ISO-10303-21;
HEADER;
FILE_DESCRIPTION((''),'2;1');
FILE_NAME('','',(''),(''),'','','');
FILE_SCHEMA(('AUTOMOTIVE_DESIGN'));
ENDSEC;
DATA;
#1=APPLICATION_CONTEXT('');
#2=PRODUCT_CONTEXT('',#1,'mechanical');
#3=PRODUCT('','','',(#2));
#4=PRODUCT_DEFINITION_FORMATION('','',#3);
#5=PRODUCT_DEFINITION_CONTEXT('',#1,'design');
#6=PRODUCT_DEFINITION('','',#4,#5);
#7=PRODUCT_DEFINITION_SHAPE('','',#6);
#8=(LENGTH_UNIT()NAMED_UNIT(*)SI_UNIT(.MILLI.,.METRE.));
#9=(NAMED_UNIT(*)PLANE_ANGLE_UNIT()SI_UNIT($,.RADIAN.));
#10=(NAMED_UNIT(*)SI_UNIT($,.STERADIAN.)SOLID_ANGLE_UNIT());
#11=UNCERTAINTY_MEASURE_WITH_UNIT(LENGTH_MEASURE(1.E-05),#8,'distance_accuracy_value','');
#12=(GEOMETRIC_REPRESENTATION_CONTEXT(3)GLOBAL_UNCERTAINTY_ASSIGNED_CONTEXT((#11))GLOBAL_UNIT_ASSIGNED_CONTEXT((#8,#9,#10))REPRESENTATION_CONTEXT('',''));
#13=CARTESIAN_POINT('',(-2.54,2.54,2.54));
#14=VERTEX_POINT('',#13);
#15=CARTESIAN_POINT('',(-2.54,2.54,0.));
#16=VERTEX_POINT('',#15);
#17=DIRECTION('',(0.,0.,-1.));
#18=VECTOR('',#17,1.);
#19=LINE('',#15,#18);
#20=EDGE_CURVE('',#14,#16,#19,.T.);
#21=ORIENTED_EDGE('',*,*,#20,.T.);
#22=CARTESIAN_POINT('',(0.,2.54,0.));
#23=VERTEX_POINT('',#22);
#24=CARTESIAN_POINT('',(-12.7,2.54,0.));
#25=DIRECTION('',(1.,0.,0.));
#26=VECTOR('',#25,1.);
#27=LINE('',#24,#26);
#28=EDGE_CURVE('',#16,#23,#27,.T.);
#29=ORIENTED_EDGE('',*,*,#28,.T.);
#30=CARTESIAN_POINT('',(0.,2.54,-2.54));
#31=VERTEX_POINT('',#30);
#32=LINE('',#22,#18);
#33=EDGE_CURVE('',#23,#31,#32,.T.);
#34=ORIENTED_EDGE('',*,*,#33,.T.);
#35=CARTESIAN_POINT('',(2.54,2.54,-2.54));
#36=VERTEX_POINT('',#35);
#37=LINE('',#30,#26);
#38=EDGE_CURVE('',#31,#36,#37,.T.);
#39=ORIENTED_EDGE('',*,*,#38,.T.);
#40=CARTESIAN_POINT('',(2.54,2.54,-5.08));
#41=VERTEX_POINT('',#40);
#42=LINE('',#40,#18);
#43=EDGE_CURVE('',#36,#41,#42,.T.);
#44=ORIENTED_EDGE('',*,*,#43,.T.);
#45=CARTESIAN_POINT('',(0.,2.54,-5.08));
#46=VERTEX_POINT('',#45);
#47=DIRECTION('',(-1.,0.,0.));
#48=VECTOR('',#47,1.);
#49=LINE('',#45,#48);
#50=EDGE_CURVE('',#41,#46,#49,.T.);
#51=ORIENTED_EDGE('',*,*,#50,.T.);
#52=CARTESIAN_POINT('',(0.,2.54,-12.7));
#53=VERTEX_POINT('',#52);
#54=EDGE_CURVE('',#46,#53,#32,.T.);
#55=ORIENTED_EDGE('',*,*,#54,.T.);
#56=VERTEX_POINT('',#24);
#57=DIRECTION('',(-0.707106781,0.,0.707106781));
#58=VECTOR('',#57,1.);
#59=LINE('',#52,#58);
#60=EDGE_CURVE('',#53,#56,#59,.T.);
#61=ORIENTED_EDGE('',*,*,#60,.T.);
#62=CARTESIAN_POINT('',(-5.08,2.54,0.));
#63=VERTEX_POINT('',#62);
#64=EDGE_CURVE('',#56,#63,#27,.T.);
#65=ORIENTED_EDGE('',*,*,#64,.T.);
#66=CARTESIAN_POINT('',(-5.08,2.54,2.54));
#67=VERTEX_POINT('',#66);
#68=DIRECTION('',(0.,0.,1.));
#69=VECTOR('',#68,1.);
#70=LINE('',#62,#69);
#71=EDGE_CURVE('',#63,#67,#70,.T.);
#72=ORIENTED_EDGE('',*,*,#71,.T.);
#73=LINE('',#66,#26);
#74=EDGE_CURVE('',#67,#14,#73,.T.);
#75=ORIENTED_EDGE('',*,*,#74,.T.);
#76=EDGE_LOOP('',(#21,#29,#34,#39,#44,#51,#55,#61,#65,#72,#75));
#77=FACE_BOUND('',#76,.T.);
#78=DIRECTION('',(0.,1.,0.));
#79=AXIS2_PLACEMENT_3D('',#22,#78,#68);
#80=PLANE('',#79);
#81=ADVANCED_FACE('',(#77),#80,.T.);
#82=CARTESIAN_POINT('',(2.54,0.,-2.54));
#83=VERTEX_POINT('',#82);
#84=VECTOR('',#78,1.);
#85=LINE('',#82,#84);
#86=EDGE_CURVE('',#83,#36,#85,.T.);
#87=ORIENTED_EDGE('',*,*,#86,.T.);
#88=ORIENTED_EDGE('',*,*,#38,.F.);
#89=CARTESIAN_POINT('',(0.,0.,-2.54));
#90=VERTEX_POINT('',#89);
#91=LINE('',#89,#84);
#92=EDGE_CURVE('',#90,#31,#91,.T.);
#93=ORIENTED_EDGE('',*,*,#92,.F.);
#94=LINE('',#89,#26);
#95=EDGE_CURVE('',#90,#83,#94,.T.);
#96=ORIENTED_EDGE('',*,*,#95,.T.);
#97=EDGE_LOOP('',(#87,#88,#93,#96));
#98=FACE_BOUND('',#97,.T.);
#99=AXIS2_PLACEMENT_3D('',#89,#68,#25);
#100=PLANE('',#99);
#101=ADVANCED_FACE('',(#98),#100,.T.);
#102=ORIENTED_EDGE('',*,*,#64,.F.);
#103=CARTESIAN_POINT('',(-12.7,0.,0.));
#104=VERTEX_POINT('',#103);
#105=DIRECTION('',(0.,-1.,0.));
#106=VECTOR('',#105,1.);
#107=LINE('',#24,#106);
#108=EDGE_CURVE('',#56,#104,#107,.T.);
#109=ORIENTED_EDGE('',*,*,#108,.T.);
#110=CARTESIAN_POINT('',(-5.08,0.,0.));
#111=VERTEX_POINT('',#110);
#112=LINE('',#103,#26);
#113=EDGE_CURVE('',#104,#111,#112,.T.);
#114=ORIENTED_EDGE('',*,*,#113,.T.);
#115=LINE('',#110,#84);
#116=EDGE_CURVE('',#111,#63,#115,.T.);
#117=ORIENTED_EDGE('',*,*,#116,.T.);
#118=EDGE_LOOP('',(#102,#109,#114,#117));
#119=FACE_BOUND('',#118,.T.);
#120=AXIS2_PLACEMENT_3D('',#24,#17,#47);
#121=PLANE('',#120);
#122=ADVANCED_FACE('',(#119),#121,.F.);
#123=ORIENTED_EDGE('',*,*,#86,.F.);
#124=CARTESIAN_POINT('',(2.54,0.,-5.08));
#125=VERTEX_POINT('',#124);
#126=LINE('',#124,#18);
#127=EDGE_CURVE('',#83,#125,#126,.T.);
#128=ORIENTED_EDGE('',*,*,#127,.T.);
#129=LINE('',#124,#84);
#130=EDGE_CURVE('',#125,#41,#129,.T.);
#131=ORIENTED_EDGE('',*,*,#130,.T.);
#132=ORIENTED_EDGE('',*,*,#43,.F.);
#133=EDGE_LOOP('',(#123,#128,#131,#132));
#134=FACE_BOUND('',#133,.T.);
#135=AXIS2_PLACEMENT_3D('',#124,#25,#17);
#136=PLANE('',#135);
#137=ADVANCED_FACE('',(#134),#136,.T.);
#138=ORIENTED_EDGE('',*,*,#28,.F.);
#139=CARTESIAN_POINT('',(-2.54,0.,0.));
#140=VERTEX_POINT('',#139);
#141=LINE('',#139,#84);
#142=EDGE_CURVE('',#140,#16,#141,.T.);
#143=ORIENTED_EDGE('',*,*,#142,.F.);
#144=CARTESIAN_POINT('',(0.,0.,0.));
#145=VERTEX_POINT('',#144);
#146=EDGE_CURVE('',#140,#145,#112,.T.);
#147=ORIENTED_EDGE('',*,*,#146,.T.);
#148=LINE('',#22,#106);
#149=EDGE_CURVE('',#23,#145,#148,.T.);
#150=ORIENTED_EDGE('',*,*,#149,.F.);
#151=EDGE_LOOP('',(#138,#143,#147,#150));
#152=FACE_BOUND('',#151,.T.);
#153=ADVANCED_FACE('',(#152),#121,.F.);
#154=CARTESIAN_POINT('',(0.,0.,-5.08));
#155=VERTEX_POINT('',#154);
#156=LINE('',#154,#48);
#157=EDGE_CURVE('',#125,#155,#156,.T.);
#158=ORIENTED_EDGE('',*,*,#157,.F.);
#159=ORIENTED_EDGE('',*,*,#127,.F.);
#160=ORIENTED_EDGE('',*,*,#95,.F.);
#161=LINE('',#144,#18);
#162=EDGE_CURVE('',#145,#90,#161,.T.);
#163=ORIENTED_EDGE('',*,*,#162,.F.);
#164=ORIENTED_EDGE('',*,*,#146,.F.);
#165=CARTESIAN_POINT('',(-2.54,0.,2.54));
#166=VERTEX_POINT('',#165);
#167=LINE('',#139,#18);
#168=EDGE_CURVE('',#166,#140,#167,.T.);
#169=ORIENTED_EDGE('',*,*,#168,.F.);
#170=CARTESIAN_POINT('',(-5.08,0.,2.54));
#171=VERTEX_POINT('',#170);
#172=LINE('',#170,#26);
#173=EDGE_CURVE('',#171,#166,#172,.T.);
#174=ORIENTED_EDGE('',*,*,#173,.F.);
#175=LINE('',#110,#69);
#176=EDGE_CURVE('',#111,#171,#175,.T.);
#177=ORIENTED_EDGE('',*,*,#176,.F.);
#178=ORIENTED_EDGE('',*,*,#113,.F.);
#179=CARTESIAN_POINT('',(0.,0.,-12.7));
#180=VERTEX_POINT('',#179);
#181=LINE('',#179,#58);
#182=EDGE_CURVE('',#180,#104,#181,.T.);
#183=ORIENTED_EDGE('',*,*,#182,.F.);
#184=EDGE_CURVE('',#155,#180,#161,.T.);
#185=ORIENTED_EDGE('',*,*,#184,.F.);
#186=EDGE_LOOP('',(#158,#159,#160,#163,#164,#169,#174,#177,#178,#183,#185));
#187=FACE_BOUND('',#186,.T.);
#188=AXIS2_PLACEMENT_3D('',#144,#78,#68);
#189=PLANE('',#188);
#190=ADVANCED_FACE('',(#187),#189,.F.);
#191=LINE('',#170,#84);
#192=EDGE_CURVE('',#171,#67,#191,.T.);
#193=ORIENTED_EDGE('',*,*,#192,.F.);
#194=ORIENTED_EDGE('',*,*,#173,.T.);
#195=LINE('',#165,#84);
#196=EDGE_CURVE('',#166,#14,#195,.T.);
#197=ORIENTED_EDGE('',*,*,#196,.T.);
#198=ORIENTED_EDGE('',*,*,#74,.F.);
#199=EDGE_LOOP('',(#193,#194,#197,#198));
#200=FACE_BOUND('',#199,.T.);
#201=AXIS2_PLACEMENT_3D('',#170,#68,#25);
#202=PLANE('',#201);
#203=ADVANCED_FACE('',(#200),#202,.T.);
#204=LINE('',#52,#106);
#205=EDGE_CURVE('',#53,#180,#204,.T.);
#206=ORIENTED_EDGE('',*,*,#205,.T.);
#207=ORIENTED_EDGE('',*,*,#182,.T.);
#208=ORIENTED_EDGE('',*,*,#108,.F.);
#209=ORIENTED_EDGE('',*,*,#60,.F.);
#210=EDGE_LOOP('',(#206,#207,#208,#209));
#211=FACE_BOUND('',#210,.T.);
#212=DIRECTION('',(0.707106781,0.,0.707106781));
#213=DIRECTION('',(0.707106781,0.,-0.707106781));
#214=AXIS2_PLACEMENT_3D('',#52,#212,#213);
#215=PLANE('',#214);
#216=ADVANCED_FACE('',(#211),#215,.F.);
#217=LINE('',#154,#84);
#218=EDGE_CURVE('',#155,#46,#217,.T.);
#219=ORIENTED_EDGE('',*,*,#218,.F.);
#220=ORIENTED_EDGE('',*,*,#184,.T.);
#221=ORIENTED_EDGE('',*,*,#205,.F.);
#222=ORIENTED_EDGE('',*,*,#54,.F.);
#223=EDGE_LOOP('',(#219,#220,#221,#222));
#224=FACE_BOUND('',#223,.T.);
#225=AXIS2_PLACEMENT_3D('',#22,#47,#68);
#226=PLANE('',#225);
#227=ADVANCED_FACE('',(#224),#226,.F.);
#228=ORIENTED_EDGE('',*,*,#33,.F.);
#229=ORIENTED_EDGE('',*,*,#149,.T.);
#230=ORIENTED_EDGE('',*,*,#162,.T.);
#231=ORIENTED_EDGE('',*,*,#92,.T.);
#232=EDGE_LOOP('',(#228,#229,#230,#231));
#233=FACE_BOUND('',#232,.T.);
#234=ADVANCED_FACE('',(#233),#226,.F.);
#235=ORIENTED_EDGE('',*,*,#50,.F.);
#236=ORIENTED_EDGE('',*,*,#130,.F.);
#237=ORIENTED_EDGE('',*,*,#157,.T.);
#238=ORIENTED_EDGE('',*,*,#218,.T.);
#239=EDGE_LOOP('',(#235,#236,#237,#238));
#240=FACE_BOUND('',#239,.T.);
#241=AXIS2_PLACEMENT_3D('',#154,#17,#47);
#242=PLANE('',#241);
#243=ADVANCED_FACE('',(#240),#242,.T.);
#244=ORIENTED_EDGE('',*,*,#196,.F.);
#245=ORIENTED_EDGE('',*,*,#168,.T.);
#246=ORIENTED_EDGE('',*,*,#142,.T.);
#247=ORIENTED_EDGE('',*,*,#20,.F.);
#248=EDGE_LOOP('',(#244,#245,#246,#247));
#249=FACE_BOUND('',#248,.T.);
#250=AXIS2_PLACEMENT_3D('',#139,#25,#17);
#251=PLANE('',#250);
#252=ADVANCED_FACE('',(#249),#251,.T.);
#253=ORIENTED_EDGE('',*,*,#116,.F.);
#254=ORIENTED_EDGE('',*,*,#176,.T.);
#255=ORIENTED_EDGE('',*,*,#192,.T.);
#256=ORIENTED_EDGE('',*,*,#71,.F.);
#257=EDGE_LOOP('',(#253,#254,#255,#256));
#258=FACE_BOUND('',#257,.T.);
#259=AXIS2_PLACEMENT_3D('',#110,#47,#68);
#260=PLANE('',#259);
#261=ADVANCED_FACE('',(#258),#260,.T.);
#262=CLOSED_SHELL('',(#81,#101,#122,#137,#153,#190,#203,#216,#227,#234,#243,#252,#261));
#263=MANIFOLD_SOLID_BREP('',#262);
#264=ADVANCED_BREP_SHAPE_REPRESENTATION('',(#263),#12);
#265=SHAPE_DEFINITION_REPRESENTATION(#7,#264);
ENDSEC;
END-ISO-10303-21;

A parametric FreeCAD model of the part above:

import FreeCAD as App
import Part
import Sketcher
from FreeCAD import Vector
Q = App.Units.Quantity


def add_polygon(sketch, points):
    """Adds a closed chain of lines whose ends are joined by coincident constraints."""
    first, n = sketch.GeometryCount, len(points)
    for a, b in zip(points, points[1:] + points[:1]):
        sketch.addGeometry(Part.LineSegment(App.Vector(*a, 0), App.Vector(*b, 0)), False)
    for i in range(n):
        sketch.addConstraint(Sketcher.Constraint("Coincident", first + i, 2, first + (i + 1) % n, 1))

doc = App.newDocument("Part")
body = doc.addObject("PartDesign::Body", "Body")

# Sketch on XZ plane
sketch1 = body.newObject("Sketcher::SketchObject", "Sketch")
sketch1.AttachmentSupport = (doc.getObject("XZ_Plane"), [""])
sketch1.MapMode = "FlatFace"
add_polygon(sketch1, [(0, 0), (0, -12.7), (-12.7, 0)])  # lines 0-2
sketch1.addConstraint([
    Sketcher.Constraint("Vertical", 0),
    Sketcher.Constraint("Horizontal", 2),
    Sketcher.Constraint("Coincident", 2, 2, -1, 1),
    Sketcher.Constraint("Equal", 2, 0),
    Sketcher.Constraint("DistanceX", 2, 1, 2, 2, Q("0.5 in")),
])
pad1 = body.newObject("PartDesign::Pad", "Pad")
pad1.Profile = sketch1
pad1.Length = Q("0.1 in")
pad1.Reversed = True

# Sketch on XZ plane
sketch2 = body.newObject("Sketcher::SketchObject", "Sketch001")
sketch2.AttachmentSupport = (doc.getObject("XZ_Plane"), [""])
sketch2.MapMode = "FlatFace"
sketch2.AttachmentOffset = App.Placement(Vector(0, 0, -0.1 * 25.4), App.Rotation())
add_polygon(sketch2, [(-5.08, 0), (-5.08, 2.54), (-2.54, 2.54), (-2.54, 0)])  # lines 0-3
add_polygon(sketch2, [(0, -5.08), (0, -2.54), (2.54, -2.54), (2.54, -5.08)])  # lines 4-7
sketch2.addConstraint([
    Sketcher.Constraint("Vertical", 0),
    Sketcher.Constraint("Horizontal", 1),
    Sketcher.Constraint("Vertical", 2),
    Sketcher.Constraint("Horizontal", 3),
    Sketcher.Constraint("Vertical", 4),
    Sketcher.Constraint("Horizontal", 5),
    Sketcher.Constraint("Vertical", 6),
    Sketcher.Constraint("Horizontal", 7),
    Sketcher.Constraint("Symmetric", 1, 2, 5, 2, -1, 1),
    Sketcher.Constraint("PointOnObject", 2, 2, -1),
    Sketcher.Constraint("PointOnObject", 4, 2, -2),
    Sketcher.Constraint("Equal", 3, 5),
    Sketcher.Constraint("Equal", 7, 0),
    Sketcher.Constraint("Equal", 2, 4),
    Sketcher.Constraint("DistanceX", 1, 1, 1, 2, Q("0.1 in")),
])
pad2 = body.newObject("PartDesign::Pad", "Pad001")
pad2.Profile = sketch2
pad2.Length = Q("0.1 in")

doc.recompute()
